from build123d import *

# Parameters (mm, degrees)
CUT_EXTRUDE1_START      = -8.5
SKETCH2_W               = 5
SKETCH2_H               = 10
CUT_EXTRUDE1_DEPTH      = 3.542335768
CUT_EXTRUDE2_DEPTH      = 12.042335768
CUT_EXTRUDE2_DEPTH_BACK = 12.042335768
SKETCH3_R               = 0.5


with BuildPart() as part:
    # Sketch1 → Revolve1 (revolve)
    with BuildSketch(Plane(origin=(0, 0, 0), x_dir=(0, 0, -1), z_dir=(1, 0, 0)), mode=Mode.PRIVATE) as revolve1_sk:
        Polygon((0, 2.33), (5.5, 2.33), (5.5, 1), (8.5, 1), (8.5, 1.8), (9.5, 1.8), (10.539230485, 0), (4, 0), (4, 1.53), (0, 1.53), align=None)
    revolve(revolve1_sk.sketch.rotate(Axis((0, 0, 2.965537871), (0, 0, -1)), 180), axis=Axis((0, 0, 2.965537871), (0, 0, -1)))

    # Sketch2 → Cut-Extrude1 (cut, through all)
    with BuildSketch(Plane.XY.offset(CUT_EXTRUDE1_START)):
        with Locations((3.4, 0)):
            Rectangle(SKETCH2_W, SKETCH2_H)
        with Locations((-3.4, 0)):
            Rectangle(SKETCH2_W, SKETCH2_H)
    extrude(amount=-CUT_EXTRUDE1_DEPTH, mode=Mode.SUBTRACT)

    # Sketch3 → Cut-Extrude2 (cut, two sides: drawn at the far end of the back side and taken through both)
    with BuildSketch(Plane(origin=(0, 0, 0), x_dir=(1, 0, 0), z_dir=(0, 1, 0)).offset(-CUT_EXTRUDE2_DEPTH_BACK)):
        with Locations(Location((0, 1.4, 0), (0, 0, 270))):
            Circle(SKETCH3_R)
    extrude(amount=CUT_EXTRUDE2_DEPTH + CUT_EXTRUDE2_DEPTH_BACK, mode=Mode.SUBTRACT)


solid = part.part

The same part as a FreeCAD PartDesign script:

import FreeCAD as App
import Part
import Sketcher
Q = App.Units.Quantity

doc = App.newDocument("Part")
body = doc.addObject("PartDesign::Body", "Body")

# Sketch on YZ plane
sketch1 = body.newObject("Sketcher::SketchObject", "Sketch")
sketch1.AttachmentSupport = (doc.getObject("YZ_Plane"), [""])
sketch1.MapMode = "FlatFace"
sketch1.addGeometry(Part.LineSegment(App.Vector(2.33, -5.5, 0), App.Vector(2.33, 0, 0)), False)
sketch1.addGeometry(Part.LineSegment(App.Vector(2.33, 0, 0), App.Vector(1.53, 0, 0)), False)
sketch1.addGeometry(Part.LineSegment(App.Vector(1.53, 0, 0), App.Vector(1.53, -4, 0)), False)
sketch1.addGeometry(Part.LineSegment(App.Vector(1.53, -4, 0), App.Vector(0, -4, 0)), False)
sketch1.addGeometry(Part.LineSegment(App.Vector(0, -4, 0), App.Vector(0, -10.53923, 0)), False)
sketch1.addGeometry(Part.LineSegment(App.Vector(0, -10.53923, 0), App.Vector(1.8, -9.5, 0)), False)
sketch1.addGeometry(Part.LineSegment(App.Vector(1.8, -9.5, 0), App.Vector(1.8, -8.5, 0)), False)
sketch1.addGeometry(Part.LineSegment(App.Vector(1.8, -8.5, 0), App.Vector(1, -8.5, 0)), False)
sketch1.addGeometry(Part.LineSegment(App.Vector(1, -8.5, 0), App.Vector(1, -5.5, 0)), False)
sketch1.addGeometry(Part.LineSegment(App.Vector(1, -5.5, 0), App.Vector(2.33, -5.5, 0)), False)
sketch1.addConstraint(Sketcher.Constraint("Coincident", 0, 2, 1, 1))
sketch1.addConstraint(Sketcher.Constraint("Coincident", 1, 2, 2, 1))
sketch1.addConstraint(Sketcher.Constraint("Coincident", 2, 2, 3, 1))
sketch1.addConstraint(Sketcher.Constraint("Coincident", 3, 2, 4, 1))
sketch1.addConstraint(Sketcher.Constraint("Coincident", 4, 2, 5, 1))
sketch1.addConstraint(Sketcher.Constraint("Coincident", 5, 2, 6, 1))
sketch1.addConstraint(Sketcher.Constraint("Coincident", 6, 2, 7, 1))
sketch1.addConstraint(Sketcher.Constraint("Coincident", 7, 2, 8, 1))
sketch1.addConstraint(Sketcher.Constraint("Coincident", 8, 2, 9, 1))
sketch1.addConstraint(Sketcher.Constraint("Coincident", 9, 2, 0, 1))
sketch1.addConstraint(Sketcher.Constraint("Vertical", 0))
sketch1.addConstraint(Sketcher.Constraint("Horizontal", 1))
sketch1.addConstraint(Sketcher.Constraint("Vertical", 2))
sketch1.addConstraint(Sketcher.Constraint("Horizontal", 3))
sketch1.addConstraint(Sketcher.Constraint("Vertical", 4))
sketch1.addConstraint(Sketcher.Constraint("Vertical", 6))
sketch1.addConstraint(Sketcher.Constraint("Horizontal", 7))
sketch1.addConstraint(Sketcher.Constraint("Vertical", 8))
sketch1.addConstraint(Sketcher.Constraint("Horizontal", 9))
sketch1.addConstraint(Sketcher.Constraint("PointOnObject", 0, 2, -1))
sketch1.addConstraint(Sketcher.Constraint("PointOnObject", 3, 2, -2))
sketch1.addConstraint(Sketcher.Constraint("Equal", 1, 7))
sketch1.addConstraint(Sketcher.Constraint("DistanceY", 2, 2, 2, 1, Q("4 mm")))
sketch1.addConstraint(Sketcher.Constraint("DistanceY", 6, 1, 6, 2, Q("1 mm")))
sketch1.addConstraint(Sketcher.Constraint("DistanceY", 8, 1, 8, 2, Q("3 mm")))
sketch1.addConstraint(Sketcher.Constraint("Angle", 5, Q("30 deg")))
sketch1.addConstraint(Sketcher.Constraint("DistanceX", 1, 2, 1, 1, Q("0.8 mm")))
sketch1.addConstraint(Sketcher.Constraint("DistanceY", 0, 1, 0, 2, Q("5.5 mm")))
sketch1.addConstraint(Sketcher.Constraint("DistanceX", -1, 1, 7, 2, Q("1 mm")))
sketch1.addConstraint(Sketcher.Constraint("DistanceX", 3, 2, 3, 1, Q("1.53 mm")))
revolution = body.newObject("PartDesign::Revolution", "Revolution")
revolution.Profile = sketch1
revolution.ReferenceAxis = (sketch1, ["V_Axis"])
revolution.Angle = 360

# Sketch on XY plane
sketch2 = body.newObject("Sketcher::SketchObject", "Sketch001")
sketch2.AttachmentSupport = (doc.getObject("XY_Plane"), [""])
sketch2.MapMode = "FlatFace"
sketch2.AttachmentOffset = App.Placement(App.Vector(0, 0, -8.5), App.Rotation())
sketch2.addGeometry(Part.LineSegment(App.Vector(0.9, 5, 0), App.Vector(0.9, -5, 0)), False)
sketch2.addGeometry(Part.LineSegment(App.Vector(0.9, -5, 0), App.Vector(5.9, -5, 0)), False)
sketch2.addGeometry(Part.LineSegment(App.Vector(5.9, -5, 0), App.Vector(5.9, 5, 0)), False)
sketch2.addGeometry(Part.LineSegment(App.Vector(5.9, 5, 0), App.Vector(0.9, 5, 0)), False)
sketch2.addGeometry(Part.LineSegment(App.Vector(-5.9, 5, 0), App.Vector(-5.9, -5, 0)), False)
sketch2.addGeometry(Part.LineSegment(App.Vector(-5.9, -5, 0), App.Vector(-0.9, -5, 0)), False)
sketch2.addGeometry(Part.LineSegment(App.Vector(-0.9, -5, 0), App.Vector(-0.9, 5, 0)), False)
sketch2.addGeometry(Part.LineSegment(App.Vector(-0.9, 5, 0), App.Vector(-5.9, 5, 0)), False)
sketch2.addConstraint(Sketcher.Constraint("Coincident", 0, 2, 1, 1))
sketch2.addConstraint(Sketcher.Constraint("Coincident", 1, 2, 2, 1))
sketch2.addConstraint(Sketcher.Constraint("Coincident", 2, 2, 3, 1))
sketch2.addConstraint(Sketcher.Constraint("Coincident", 3, 2, 0, 1))
sketch2.addConstraint(Sketcher.Constraint("Coincident", 4, 2, 5, 1))
sketch2.addConstraint(Sketcher.Constraint("Coincident", 5, 2, 6, 1))
sketch2.addConstraint(Sketcher.Constraint("Coincident", 6, 2, 7, 1))
sketch2.addConstraint(Sketcher.Constraint("Coincident", 7, 2, 4, 1))
sketch2.addConstraint(Sketcher.Constraint("Vertical", 0))
sketch2.addConstraint(Sketcher.Constraint("Horizontal", 1))
sketch2.addConstraint(Sketcher.Constraint("Vertical", 2))
sketch2.addConstraint(Sketcher.Constraint("Horizontal", 3))
sketch2.addConstraint(Sketcher.Constraint("Vertical", 4))
sketch2.addConstraint(Sketcher.Constraint("Horizontal", 5))
sketch2.addConstraint(Sketcher.Constraint("Vertical", 6))
sketch2.addConstraint(Sketcher.Constraint("Horizontal", 7))
sketch2.addConstraint(Sketcher.Constraint("Symmetric", 2, 2, 4, 2, -1, 1))
sketch2.addConstraint(Sketcher.Constraint("Symmetric", 0, 2, 6, 2, -1, 1))
sketch2.addConstraint(Sketcher.Constraint("Horizontal", 1, 2, 4, 2))
sketch2.addConstraint(Sketcher.Constraint("DistanceX", 1, 1, 1, 2, Q("5 mm")))
sketch2.addConstraint(Sketcher.Constraint("DistanceY", 0, 2, 0, 1, Q("10 mm")))
sketch2.addConstraint(Sketcher.Constraint("DistanceX", -1, 1, 0, 2, Q("0.9 mm")))
pocket1 = body.newObject("PartDesign::Pocket", "Pocket")
pocket1.Profile = sketch2
pocket1.Type = "ThroughAll"

# Sketch on XZ plane
sketch3 = body.newObject("Sketcher::SketchObject", "Sketch002")
sketch3.AttachmentSupport = (doc.getObject("XZ_Plane"), [""])
sketch3.MapMode = "FlatFace"
sketch3.addGeometry(Part.Circle(App.Vector(0, -1.4, 0), App.Vector(0, 0, 1), 0.5), False)
sketch3.addConstraint(Sketcher.Constraint("PointOnObject", 0, 3, -2))
sketch3.addConstraint(Sketcher.Constraint("Diameter", 0, Q("1 mm")))
sketch3.addConstraint(Sketcher.Constraint("DistanceY", 0, 3, -1, 1, Q("1.4 mm")))
pocket2 = body.newObject("PartDesign::Pocket", "Pocket001")
pocket2.Profile = sketch3
pocket2.Type = "ThroughAll"
pocket2.Midplane = True

doc.recompute()
